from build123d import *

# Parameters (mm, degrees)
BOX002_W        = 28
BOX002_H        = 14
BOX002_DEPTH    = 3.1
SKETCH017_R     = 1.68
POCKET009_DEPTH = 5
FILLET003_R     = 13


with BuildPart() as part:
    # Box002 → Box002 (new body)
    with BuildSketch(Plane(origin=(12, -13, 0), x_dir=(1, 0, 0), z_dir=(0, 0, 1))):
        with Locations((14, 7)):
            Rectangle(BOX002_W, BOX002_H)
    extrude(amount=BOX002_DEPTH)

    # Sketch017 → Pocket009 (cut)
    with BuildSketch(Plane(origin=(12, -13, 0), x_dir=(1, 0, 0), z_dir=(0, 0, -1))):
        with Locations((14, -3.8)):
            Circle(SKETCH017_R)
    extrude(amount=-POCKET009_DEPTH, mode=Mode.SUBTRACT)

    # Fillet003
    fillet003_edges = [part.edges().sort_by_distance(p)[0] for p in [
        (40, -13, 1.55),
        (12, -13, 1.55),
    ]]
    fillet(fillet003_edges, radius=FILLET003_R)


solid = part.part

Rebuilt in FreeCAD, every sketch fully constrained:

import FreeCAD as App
import Part
import Sketcher
from FreeCAD import Vector


def edges_at(feature, points):
    """Names of the edges that pass closest to the given points."""
    edges = feature.Shape.Edges
    near = lambda p: min(range(len(edges)), key=lambda i: edges[i].distToShape(Part.Vertex(*p))[0])
    return sorted({f"Edge{near(p) + 1}" for p in points})

doc = App.newDocument("Part")
body = doc.addObject("PartDesign::Body", "Body")

# Sketch on XY plane
sketch1 = body.newObject("Sketcher::SketchObject", "Sketch")
sketch1.AttachmentSupport = (doc.getObject("XY_Plane"), [""])
sketch1.MapMode = "FlatFace"
sketch1.addGeometry([
    Part.LineSegment(Vector(12, 1, 0), Vector(12, -13, 0)),
    Part.LineSegment(Vector(12, -13, 0), Vector(40, -13, 0)),
    Part.LineSegment(Vector(40, -13, 0), Vector(40, 1, 0)),
    Part.LineSegment(Vector(40, 1, 0), Vector(12, 1, 0)),
], False)
sketch1.addConstraint([
    Sketcher.Constraint("Coincident", 0, 2, 1, 1),
    Sketcher.Constraint("Coincident", 1, 2, 2, 1),
    Sketcher.Constraint("Coincident", 2, 2, 3, 1),
    Sketcher.Constraint("Coincident", 3, 2, 0, 1),
    Sketcher.Constraint("Vertical", 0),
    Sketcher.Constraint("Horizontal", 1),
    Sketcher.Constraint("Vertical", 2),
    Sketcher.Constraint("Horizontal", 3),
    Sketcher.Constraint("DistanceX", 1, 1, 1, 2, 28.0),
    Sketcher.Constraint("DistanceY", 0, 2, 0, 1, 14.0),
    Sketcher.Constraint("DistanceX", -1, 1, 0, 2, 12.0),
    Sketcher.Constraint("DistanceY", 0, 2, -1, 1, 13.0),
])
pad1 = body.newObject("PartDesign::Pad", "Pad")
pad1.Profile = sketch1
pad1.Length = 3.1

# Sketch on XY plane
sketch2 = body.newObject("Sketcher::SketchObject", "Sketch001")
sketch2.AttachmentSupport = (doc.getObject("XY_Plane"), [""])
sketch2.MapMode = "FlatFace"
sketch2.addGeometry(Part.Circle(Vector(26, -9.2, 0), Vector(0, 0, 1), 1.7), False)
sketch2.addConstraint([
    Sketcher.Constraint("Diameter", 0, 3.36),
    Sketcher.Constraint("DistanceX", -1, 1, 0, 3, 26.0),
    Sketcher.Constraint("DistanceY", 0, 3, -1, 1, 9.2),
])
pocket1 = body.newObject("PartDesign::Pocket", "Pocket")
pocket1.Profile = sketch2
pocket1.Length = 5
pocket1.Reversed = True
doc.recompute()

fillet = body.newObject("PartDesign::Fillet", "Fillet")
fillet.Base = (pocket1, edges_at(pocket1, [(40, -13, 1.55), (12, -13, 1.55)]))
fillet.Radius = 13

doc.recompute()
